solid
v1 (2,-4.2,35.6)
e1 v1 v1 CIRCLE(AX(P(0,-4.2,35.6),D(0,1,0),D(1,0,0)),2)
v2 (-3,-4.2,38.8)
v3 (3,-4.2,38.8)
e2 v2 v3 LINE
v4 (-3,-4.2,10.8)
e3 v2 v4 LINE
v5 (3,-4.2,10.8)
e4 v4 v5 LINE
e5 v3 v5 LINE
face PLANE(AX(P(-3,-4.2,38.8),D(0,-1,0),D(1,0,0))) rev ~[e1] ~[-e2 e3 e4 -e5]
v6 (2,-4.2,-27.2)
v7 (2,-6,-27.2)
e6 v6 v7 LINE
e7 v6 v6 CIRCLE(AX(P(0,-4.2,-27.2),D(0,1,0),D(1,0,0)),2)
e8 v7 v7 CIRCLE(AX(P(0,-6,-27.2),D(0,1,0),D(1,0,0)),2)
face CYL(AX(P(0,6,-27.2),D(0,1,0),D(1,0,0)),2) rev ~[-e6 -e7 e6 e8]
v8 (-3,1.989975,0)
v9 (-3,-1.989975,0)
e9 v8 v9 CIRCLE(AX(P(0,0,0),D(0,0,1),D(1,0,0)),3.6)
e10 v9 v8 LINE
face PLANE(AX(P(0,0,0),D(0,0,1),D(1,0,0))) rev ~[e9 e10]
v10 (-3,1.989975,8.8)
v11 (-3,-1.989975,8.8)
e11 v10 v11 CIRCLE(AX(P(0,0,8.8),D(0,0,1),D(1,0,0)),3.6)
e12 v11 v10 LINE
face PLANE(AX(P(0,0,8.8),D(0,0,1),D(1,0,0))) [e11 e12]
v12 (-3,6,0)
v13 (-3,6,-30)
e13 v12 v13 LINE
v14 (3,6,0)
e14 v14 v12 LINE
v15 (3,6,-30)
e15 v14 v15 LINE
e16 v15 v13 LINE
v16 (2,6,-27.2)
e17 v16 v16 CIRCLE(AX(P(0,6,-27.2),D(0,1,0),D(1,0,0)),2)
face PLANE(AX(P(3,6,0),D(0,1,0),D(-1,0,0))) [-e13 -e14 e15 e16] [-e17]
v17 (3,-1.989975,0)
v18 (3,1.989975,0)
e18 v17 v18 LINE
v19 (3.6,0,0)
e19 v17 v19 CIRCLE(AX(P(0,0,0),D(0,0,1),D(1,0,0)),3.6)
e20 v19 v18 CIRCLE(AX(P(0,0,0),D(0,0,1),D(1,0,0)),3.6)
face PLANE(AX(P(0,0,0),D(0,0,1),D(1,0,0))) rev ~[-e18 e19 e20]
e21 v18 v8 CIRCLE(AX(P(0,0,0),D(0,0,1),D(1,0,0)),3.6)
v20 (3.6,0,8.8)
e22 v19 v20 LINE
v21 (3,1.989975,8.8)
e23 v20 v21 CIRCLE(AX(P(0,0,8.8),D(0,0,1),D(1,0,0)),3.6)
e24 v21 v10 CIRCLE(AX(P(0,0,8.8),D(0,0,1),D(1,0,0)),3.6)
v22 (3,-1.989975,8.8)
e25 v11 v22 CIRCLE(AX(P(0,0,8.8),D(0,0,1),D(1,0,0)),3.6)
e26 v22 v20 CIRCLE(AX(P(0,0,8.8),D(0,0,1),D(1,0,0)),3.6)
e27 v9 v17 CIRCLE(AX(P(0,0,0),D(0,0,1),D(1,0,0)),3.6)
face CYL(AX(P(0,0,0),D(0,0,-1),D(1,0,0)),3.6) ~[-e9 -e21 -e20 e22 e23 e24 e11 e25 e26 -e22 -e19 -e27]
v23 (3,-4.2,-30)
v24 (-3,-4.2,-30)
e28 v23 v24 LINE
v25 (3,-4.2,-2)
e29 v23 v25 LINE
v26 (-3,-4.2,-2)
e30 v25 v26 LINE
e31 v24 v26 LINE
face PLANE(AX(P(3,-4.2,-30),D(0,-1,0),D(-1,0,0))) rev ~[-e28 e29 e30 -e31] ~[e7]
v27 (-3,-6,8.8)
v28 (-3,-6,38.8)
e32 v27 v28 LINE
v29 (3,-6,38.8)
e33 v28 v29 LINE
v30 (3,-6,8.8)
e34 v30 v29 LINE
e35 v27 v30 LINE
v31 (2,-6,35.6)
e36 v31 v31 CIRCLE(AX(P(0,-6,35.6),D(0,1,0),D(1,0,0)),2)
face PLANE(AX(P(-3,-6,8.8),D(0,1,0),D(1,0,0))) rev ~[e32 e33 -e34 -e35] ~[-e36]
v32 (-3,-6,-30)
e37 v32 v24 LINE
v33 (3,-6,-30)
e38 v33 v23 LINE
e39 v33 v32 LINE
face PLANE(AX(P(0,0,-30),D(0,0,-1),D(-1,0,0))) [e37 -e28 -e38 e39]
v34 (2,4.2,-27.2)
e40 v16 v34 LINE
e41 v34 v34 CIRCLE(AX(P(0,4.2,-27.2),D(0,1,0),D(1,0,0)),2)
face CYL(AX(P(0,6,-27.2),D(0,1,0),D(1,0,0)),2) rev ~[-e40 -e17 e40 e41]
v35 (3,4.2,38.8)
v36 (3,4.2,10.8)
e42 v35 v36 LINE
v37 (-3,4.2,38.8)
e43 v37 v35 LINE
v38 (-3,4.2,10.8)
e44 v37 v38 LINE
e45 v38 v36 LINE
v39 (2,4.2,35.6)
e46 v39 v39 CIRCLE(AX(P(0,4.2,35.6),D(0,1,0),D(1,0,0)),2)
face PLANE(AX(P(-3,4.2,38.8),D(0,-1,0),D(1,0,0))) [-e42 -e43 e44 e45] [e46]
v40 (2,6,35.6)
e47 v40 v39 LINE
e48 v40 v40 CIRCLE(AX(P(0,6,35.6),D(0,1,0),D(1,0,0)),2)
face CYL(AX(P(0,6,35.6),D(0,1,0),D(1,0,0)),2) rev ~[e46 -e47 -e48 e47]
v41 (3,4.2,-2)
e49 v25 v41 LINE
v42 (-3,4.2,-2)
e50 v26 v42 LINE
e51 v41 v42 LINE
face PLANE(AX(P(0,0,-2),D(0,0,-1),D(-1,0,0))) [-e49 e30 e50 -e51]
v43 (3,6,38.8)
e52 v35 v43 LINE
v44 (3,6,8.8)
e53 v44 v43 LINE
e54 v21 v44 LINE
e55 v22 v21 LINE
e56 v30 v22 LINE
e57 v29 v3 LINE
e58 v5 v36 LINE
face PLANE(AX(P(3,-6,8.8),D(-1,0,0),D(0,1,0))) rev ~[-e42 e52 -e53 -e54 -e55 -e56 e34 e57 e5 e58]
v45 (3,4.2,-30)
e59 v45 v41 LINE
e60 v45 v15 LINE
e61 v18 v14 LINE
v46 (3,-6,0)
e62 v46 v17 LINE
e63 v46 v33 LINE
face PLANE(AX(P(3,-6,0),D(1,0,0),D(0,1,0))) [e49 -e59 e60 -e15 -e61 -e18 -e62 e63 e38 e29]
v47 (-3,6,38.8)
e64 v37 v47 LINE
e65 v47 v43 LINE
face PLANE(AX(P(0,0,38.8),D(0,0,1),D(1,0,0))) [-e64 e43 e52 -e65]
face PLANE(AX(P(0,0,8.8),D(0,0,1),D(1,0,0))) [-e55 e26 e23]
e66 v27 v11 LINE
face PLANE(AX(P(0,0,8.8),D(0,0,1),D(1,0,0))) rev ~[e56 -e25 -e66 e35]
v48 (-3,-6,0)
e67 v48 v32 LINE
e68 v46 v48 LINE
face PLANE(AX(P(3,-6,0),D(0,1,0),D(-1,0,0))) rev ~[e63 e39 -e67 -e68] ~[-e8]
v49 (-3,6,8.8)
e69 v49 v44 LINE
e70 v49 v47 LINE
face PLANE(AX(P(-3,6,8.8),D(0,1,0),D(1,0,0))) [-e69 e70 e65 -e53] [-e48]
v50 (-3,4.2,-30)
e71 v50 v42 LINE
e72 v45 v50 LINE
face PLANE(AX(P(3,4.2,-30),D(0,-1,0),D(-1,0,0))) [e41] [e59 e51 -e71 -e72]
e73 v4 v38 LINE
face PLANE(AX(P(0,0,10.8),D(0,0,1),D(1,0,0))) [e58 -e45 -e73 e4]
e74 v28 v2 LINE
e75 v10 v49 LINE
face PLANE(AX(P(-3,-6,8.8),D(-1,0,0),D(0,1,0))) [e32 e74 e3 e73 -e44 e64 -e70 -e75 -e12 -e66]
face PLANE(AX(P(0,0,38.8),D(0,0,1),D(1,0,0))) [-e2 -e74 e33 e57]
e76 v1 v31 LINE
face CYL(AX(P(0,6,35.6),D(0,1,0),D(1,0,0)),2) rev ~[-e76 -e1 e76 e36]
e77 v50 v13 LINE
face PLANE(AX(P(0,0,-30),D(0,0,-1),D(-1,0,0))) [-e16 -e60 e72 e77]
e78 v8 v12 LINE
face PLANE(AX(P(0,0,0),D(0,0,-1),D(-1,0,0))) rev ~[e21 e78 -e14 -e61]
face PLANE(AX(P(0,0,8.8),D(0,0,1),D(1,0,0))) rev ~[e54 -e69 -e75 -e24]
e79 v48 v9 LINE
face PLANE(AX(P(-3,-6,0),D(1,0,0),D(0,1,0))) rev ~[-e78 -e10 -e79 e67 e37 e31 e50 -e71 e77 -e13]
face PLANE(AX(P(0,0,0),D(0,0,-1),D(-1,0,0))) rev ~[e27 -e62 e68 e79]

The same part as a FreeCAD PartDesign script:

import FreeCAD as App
import Part
import Sketcher
Q = App.Units.Quantity

doc = App.newDocument("Part")
params = doc.addObject("Spreadsheet::Sheet", "Params")
for row, (alias, value) in enumerate([
    ("sketch1_diameter", "7.2 mm"),
    ("pad1_length", "8.8 mm"),
    ("sketch2_width", "6 mm"),
    ("sketch2_height", "12 mm"),
    ("pad2_length", "30 mm"),
    ("sketch3_width", "6 mm"),
    ("sketch3_height", "12 mm"),
    ("pad3_length", "30 mm"),
    ("sketch4_diameter", "4 mm"),
    ("pocket1_length", "30 mm"),
    ("sketch5_width", "6 mm"),
    ("sketch5_height", "8.4 mm"),
    ("pocket2_length", "28 mm"),
    ("sketch6_width", "6 mm"),
    ("sketch6_height", "8.4 mm"),
    ("pocket3_length", "28 mm"),
], start=1):
    params.set(f"A{row}", alias)
    params.set(f"B{row}", "=" + value)
    params.setAlias(f"B{row}", alias)

body = doc.addObject("PartDesign::Body", "Body")

# Sketch on XY plane
sketch1 = doc.addObject("Sketcher::SketchObject", "Sketch")
body.addObject(sketch1)
sketch1.AttachmentSupport = (doc.XY_Plane, [""])
sketch1.MapMode = "FlatFace"
sketch1.addGeometry(Part.Circle(App.Vector(0, 0, 0), App.Vector(0, 0, 1), 3.6), False)
sketch1.addConstraint(Sketcher.Constraint("Coincident", 0, 3, -1, 1))
sketch1.addConstraint(Sketcher.Constraint("Diameter", 0, Q("7.2 mm")))
sketch1.setExpression("Constraints[1]", "Params.sketch1_diameter")
pad1 = doc.addObject("PartDesign::Pad", "Pad")
body.addObject(pad1)
pad1.Profile = sketch1
pad1.setExpression("Length", "Params.pad1_length")

# Sketch on XY plane
sketch2 = doc.addObject("Sketcher::SketchObject", "Sketch001")
body.addObject(sketch2)
sketch2.AttachmentSupport = (doc.XY_Plane, [""])
sketch2.MapMode = "FlatFace"
sketch2.AttachmentOffset = App.Placement(App.Vector(0, 0, 8.8), App.Rotation())
sketch2.addGeometry(Part.LineSegment(App.Vector(-3, 6, 0), App.Vector(-3, -6, 0)), False)
sketch2.addGeometry(Part.LineSegment(App.Vector(-3, -6, 0), App.Vector(3, -6, 0)), False)
sketch2.addGeometry(Part.LineSegment(App.Vector(3, -6, 0), App.Vector(3, 6, 0)), False)
sketch2.addGeometry(Part.LineSegment(App.Vector(3, 6, 0), App.Vector(-3, 6, 0)), False)
sketch2.addConstraint(Sketcher.Constraint("Coincident", 0, 2, 1, 1))
sketch2.addConstraint(Sketcher.Constraint("Coincident", 1, 2, 2, 1))
sketch2.addConstraint(Sketcher.Constraint("Coincident", 2, 2, 3, 1))
sketch2.addConstraint(Sketcher.Constraint("Coincident", 3, 2, 0, 1))
sketch2.addConstraint(Sketcher.Constraint("Vertical", 0))
sketch2.addConstraint(Sketcher.Constraint("Horizontal", 1))
sketch2.addConstraint(Sketcher.Constraint("Vertical", 2))
sketch2.addConstraint(Sketcher.Constraint("Horizontal", 3))
sketch2.addConstraint(Sketcher.Constraint("Symmetric", 0, 2, 2, 2, -1, 1))
sketch2.addConstraint(Sketcher.Constraint("DistanceX", 1, 1, 1, 2, Q("6 mm")))
sketch2.addConstraint(Sketcher.Constraint("DistanceY", 0, 2, 0, 1, Q("12 mm")))
sketch2.setExpression("Constraints[9]", "Params.sketch2_width")
sketch2.setExpression("Constraints[10]", "Params.sketch2_height")
pad2 = doc.addObject("PartDesign::Pad", "Pad001")
body.addObject(pad2)
pad2.Profile = sketch2
pad2.setExpression("Length", "Params.pad2_length")

# Sketch on XY plane
sketch3 = doc.addObject("Sketcher::SketchObject", "Sketch002")
body.addObject(sketch3)
sketch3.AttachmentSupport = (doc.XY_Plane, [""])
sketch3.MapMode = "FlatFace"
sketch3.addGeometry(Part.LineSegment(App.Vector(3, 6, 0), App.Vector(3, -6, 0)), False)
sketch3.addGeometry(Part.LineSegment(App.Vector(3, -6, 0), App.Vector(-3, -6, 0)), False)
sketch3.addGeometry(Part.LineSegment(App.Vector(-3, -6, 0), App.Vector(-3, 6, 0)), False)
sketch3.addGeometry(Part.LineSegment(App.Vector(-3, 6, 0), App.Vector(3, 6, 0)), False)
sketch3.addConstraint(Sketcher.Constraint("Coincident", 0, 2, 1, 1))
sketch3.addConstraint(Sketcher.Constraint("Coincident", 1, 2, 2, 1))
sketch3.addConstraint(Sketcher.Constraint("Coincident", 2, 2, 3, 1))
sketch3.addConstraint(Sketcher.Constraint("Coincident", 3, 2, 0, 1))
sketch3.addConstraint(Sketcher.Constraint("Vertical", 0))
sketch3.addConstraint(Sketcher.Constraint("Horizontal", 1))
sketch3.addConstraint(Sketcher.Constraint("Vertical", 2))
sketch3.addConstraint(Sketcher.Constraint("Horizontal", 3))
sketch3.addConstraint(Sketcher.Constraint("Symmetric", 0, 2, 2, 2, -1, 1))
sketch3.addConstraint(Sketcher.Constraint("DistanceX", 1, 2, 1, 1, Q("6 mm")))
sketch3.addConstraint(Sketcher.Constraint("DistanceY", 0, 2, 0, 1, Q("12 mm")))
sketch3.setExpression("Constraints[9]", "Params.sketch3_width")
sketch3.setExpression("Constraints[10]", "Params.sketch3_height")
pad3 = doc.addObject("PartDesign::Pad", "Pad002")
body.addObject(pad3)
pad3.Profile = sketch3
pad3.setExpression("Length", "Params.pad3_length")
pad3.Reversed = True

# Sketch on XZ plane
sketch4 = doc.addObject("Sketcher::SketchObject", "Sketch003")
body.addObject(sketch4)
sketch4.AttachmentSupport = (doc.XZ_Plane, [""])
sketch4.MapMode = "FlatFace"
sketch4.AttachmentOffset = App.Placement(App.Vector(0, 0, -6), App.Rotation())
sketch4.addGeometry(Part.Circle(App.Vector(0, 35.6, 0), App.Vector(0, 0, 1), 2), False)
sketch4.addGeometry(Part.Circle(App.Vector(0, -27.2, 0), App.Vector(0, 0, 1), 2), False)
sketch4.addConstraint(Sketcher.Constraint("Equal", 0, 1))
sketch4.addConstraint(Sketcher.Constraint("PointOnObject", 0, 3, -2))
sketch4.addConstraint(Sketcher.Constraint("PointOnObject", 1, 3, -2))
sketch4.addConstraint(Sketcher.Constraint("Diameter", 0, Q("4 mm")))
sketch4.addConstraint(Sketcher.Constraint("DistanceY", -1, 1, 0, 3, Q("35.6 mm")))
sketch4.addConstraint(Sketcher.Constraint("DistanceY", 1, 3, -1, 1, Q("27.2 mm")))
sketch4.setExpression("Constraints[3]", "Params.sketch4_diameter")
pocket1 = doc.addObject("PartDesign::Pocket", "Pocket")
body.addObject(pocket1)
pocket1.Profile = sketch4
pocket1.setExpression("Length", "Params.pocket1_length")
pocket1.Reversed = True

# Sketch on XY plane
sketch5 = doc.addObject("Sketcher::SketchObject", "Sketch004")
body.addObject(sketch5)
sketch5.AttachmentSupport = (doc.XY_Plane, [""])
sketch5.MapMode = "FlatFace"
sketch5.AttachmentOffset = App.Placement(App.Vector(0, 0, -30), App.Rotation())
sketch5.addGeometry(Part.LineSegment(App.Vector(3, 4, 0), App.Vector(3, -4, 0)), False)
sketch5.addGeometry(Part.LineSegment(App.Vector(3, -4, 0), App.Vector(-3, -4, 0)), False)
sketch5.addGeometry(Part.LineSegment(App.Vector(-3, -4, 0), App.Vector(-3, 4, 0)), False)
sketch5.addGeometry(Part.LineSegment(App.Vector(-3, 4, 0), App.Vector(3, 4, 0)), False)
sketch5.addConstraint(Sketcher.Constraint("Coincident", 0, 2, 1, 1))
sketch5.addConstraint(Sketcher.Constraint("Coincident", 1, 2, 2, 1))
sketch5.addConstraint(Sketcher.Constraint("Coincident", 2, 2, 3, 1))
sketch5.addConstraint(Sketcher.Constraint("Coincident", 3, 2, 0, 1))
sketch5.addConstraint(Sketcher.Constraint("Vertical", 0))
sketch5.addConstraint(Sketcher.Constraint("Horizontal", 1))
sketch5.addConstraint(Sketcher.Constraint("Vertical", 2))
sketch5.addConstraint(Sketcher.Constraint("Horizontal", 3))
sketch5.addConstraint(Sketcher.Constraint("Symmetric", 0, 2, 2, 2, -1, 1))
sketch5.addConstraint(Sketcher.Constraint("DistanceX", 1, 2, 1, 1, Q("6 mm")))
sketch5.addConstraint(Sketcher.Constraint("DistanceY", 0, 2, 0, 1, Q("8.4 mm")))
sketch5.setExpression("Constraints[9]", "Params.sketch5_width")
sketch5.setExpression("Constraints[10]", "Params.sketch5_height")
pocket2 = doc.addObject("PartDesign::Pocket", "Pocket001")
body.addObject(pocket2)
pocket2.Profile = sketch5
pocket2.setExpression("Length", "Params.pocket2_length")
pocket2.Reversed = True

# Sketch on XY plane
sketch6 = doc.addObject("Sketcher::SketchObject", "Sketch005")
body.addObject(sketch6)
sketch6.AttachmentSupport = (doc.XY_Plane, [""])
sketch6.MapMode = "FlatFace"
sketch6.AttachmentOffset = App.Placement(App.Vector(0, 0, 38.8), App.Rotation())
sketch6.addGeometry(Part.LineSegment(App.Vector(-3, 4, 0), App.Vector(-3, -4, 0)), False)
sketch6.addGeometry(Part.LineSegment(App.Vector(-3, -4, 0), App.Vector(3, -4, 0)), False)
sketch6.addGeometry(Part.LineSegment(App.Vector(3, -4, 0), App.Vector(3, 4, 0)), False)
sketch6.addGeometry(Part.LineSegment(App.Vector(3, 4, 0), App.Vector(-3, 4, 0)), False)
sketch6.addConstraint(Sketcher.Constraint("Coincident", 0, 2, 1, 1))
sketch6.addConstraint(Sketcher.Constraint("Coincident", 1, 2, 2, 1))
sketch6.addConstraint(Sketcher.Constraint("Coincident", 2, 2, 3, 1))
sketch6.addConstraint(Sketcher.Constraint("Coincident", 3, 2, 0, 1))
sketch6.addConstraint(Sketcher.Constraint("Vertical", 0))
sketch6.addConstraint(Sketcher.Constraint("Horizontal", 1))
sketch6.addConstraint(Sketcher.Constraint("Vertical", 2))
sketch6.addConstraint(Sketcher.Constraint("Horizontal", 3))
sketch6.addConstraint(Sketcher.Constraint("Symmetric", 0, 2, 2, 2, -1, 1))
sketch6.addConstraint(Sketcher.Constraint("DistanceX", 1, 1, 1, 2, Q("6 mm")))
sketch6.addConstraint(Sketcher.Constraint("DistanceY", 0, 2, 0, 1, Q("8.4 mm")))
sketch6.setExpression("Constraints[9]", "Params.sketch6_width")
sketch6.setExpression("Constraints[10]", "Params.sketch6_height")
pocket3 = doc.addObject("PartDesign::Pocket", "Pocket002")
body.addObject(pocket3)
pocket3.Profile = sketch6
pocket3.setExpression("Length", "Params.pocket3_length")

doc.recompute()
